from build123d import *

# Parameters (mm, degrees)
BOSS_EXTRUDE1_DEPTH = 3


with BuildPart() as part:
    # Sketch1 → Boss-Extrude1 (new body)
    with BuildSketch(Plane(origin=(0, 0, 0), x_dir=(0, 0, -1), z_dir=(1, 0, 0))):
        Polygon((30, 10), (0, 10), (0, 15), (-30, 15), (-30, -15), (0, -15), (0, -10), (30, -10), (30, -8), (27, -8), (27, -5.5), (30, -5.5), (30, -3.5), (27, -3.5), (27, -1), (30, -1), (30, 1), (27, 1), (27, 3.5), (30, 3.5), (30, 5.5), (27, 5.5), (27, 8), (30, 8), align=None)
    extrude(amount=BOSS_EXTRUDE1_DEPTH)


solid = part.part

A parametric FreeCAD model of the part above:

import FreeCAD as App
import Part
import Sketcher
from FreeCAD import Vector

doc = App.newDocument("Part")
body = doc.addObject("PartDesign::Body", "Body")

sketch1 = doc.addObject("Sketcher::SketchObject", "Sketch")
body.addObject(sketch1)
sketch1.AttachmentSupport = (doc.YZ_Plane, [""])
sketch1.MapMode = "FlatFace"
sketch1.addGeometry([
    Part.LineSegment(Vector(10, -30, 0), Vector(10, 0, 0)),
    Part.LineSegment(Vector(10, 0, 0), Vector(15, 0, 0)),
    Part.LineSegment(Vector(15, 0, 0), Vector(15, 30, 0)),
    Part.LineSegment(Vector(15, 30, 0), Vector(-15, 30, 0)),
    Part.LineSegment(Vector(-15, 30, 0), Vector(-15, 0, 0)),
    Part.LineSegment(Vector(-15, 0, 0), Vector(-10, 0, 0)),
    Part.LineSegment(Vector(-10, 0, 0), Vector(-10, -30, 0)),
    Part.LineSegment(Vector(-10, -30, 0), Vector(-8, -30, 0)),
    Part.LineSegment(Vector(-8, -30, 0), Vector(-8, -27, 0)),
    Part.LineSegment(Vector(-8, -27, 0), Vector(-5.5, -27, 0)),
    Part.LineSegment(Vector(-5.5, -27, 0), Vector(-5.5, -30, 0)),
    Part.LineSegment(Vector(-5.5, -30, 0), Vector(-3.5, -30, 0)),
    Part.LineSegment(Vector(-3.5, -30, 0), Vector(-3.5, -27, 0)),
    Part.LineSegment(Vector(-3.5, -27, 0), Vector(-1, -27, 0)),
    Part.LineSegment(Vector(-1, -27, 0), Vector(-1, -30, 0)),
    Part.LineSegment(Vector(-1, -30, 0), Vector(1, -30, 0)),
    Part.LineSegment(Vector(1, -30, 0), Vector(1, -27, 0)),
    Part.LineSegment(Vector(1, -27, 0), Vector(3.5, -27, 0)),
    Part.LineSegment(Vector(3.5, -27, 0), Vector(3.5, -30, 0)),
    Part.LineSegment(Vector(3.5, -30, 0), Vector(5.5, -30, 0)),
    Part.LineSegment(Vector(5.5, -30, 0), Vector(5.5, -27, 0)),
    Part.LineSegment(Vector(5.5, -27, 0), Vector(8, -27, 0)),
    Part.LineSegment(Vector(8, -27, 0), Vector(8, -30, 0)),
    Part.LineSegment(Vector(8, -30, 0), Vector(10, -30, 0)),
], False)
sketch1.addConstraint([
    Sketcher.Constraint("Coincident", 0, 2, 1, 1),
    Sketcher.Constraint("Coincident", 1, 2, 2, 1),
    Sketcher.Constraint("Coincident", 2, 2, 3, 1),
    Sketcher.Constraint("Coincident", 3, 2, 4, 1),
    Sketcher.Constraint("Coincident", 4, 2, 5, 1),
    Sketcher.Constraint("Coincident", 5, 2, 6, 1),
    Sketcher.Constraint("Coincident", 6, 2, 7, 1),
    Sketcher.Constraint("Coincident", 7, 2, 8, 1),
    Sketcher.Constraint("Coincident", 8, 2, 9, 1),
    Sketcher.Constraint("Coincident", 9, 2, 10, 1),
    Sketcher.Constraint("Coincident", 10, 2, 11, 1),
    Sketcher.Constraint("Coincident", 11, 2, 12, 1),
    Sketcher.Constraint("Coincident", 12, 2, 13, 1),
    Sketcher.Constraint("Coincident", 13, 2, 14, 1),
    Sketcher.Constraint("Coincident", 14, 2, 15, 1),
    Sketcher.Constraint("Coincident", 15, 2, 16, 1),
    Sketcher.Constraint("Coincident", 16, 2, 17, 1),
    Sketcher.Constraint("Coincident", 17, 2, 18, 1),
    Sketcher.Constraint("Coincident", 18, 2, 19, 1),
    Sketcher.Constraint("Coincident", 19, 2, 20, 1),
    Sketcher.Constraint("Coincident", 20, 2, 21, 1),
    Sketcher.Constraint("Coincident", 21, 2, 22, 1),
    Sketcher.Constraint("Coincident", 22, 2, 23, 1),
    Sketcher.Constraint("Coincident", 23, 2, 0, 1),
    Sketcher.Constraint("Vertical", 0),
    Sketcher.Constraint("Horizontal", 1),
    Sketcher.Constraint("Vertical", 2),
    Sketcher.Constraint("Horizontal", 3),
    Sketcher.Constraint("Vertical", 4),
    Sketcher.Constraint("Horizontal", 5),
    Sketcher.Constraint("Vertical", 6),
    Sketcher.Constraint("Horizontal", 7),
    Sketcher.Constraint("Vertical", 8),
    Sketcher.Constraint("Horizontal", 9),
    Sketcher.Constraint("Vertical", 10),
    Sketcher.Constraint("Horizontal", 11),
    Sketcher.Constraint("Vertical", 12),
    Sketcher.Constraint("Horizontal", 13),
    Sketcher.Constraint("Vertical", 14),
    Sketcher.Constraint("Horizontal", 15),
    Sketcher.Constraint("Vertical", 16),
    Sketcher.Constraint("Horizontal", 17),
    Sketcher.Constraint("Vertical", 18),
    Sketcher.Constraint("Horizontal", 19),
    Sketcher.Constraint("Vertical", 20),
    Sketcher.Constraint("Horizontal", 21),
    Sketcher.Constraint("Vertical", 22),
    Sketcher.Constraint("Horizontal", 23),
    Sketcher.Constraint("Symmetric", 1, 2, 4, 2, -1, 1),
    Sketcher.Constraint("Symmetric", 0, 2, 5, 2, -2),
    Sketcher.Constraint("Symmetric", 13, 2, 16, 2, -2),
    Sketcher.Constraint("Symmetric", 11, 2, 18, 2, -2),
    Sketcher.Constraint("Symmetric", 9, 2, 20, 2, -2),
    Sketcher.Constraint("Symmetric", 7, 2, 22, 2, -2),
    Sketcher.Constraint("Horizontal", 7, 2, 10, 2),
    Sketcher.Constraint("Horizontal", 9, 2, 12, 2),
    Sketcher.Constraint("Horizontal", 11, 2, 14, 2),
    Sketcher.Constraint("Equal", 7, 11),
    Sketcher.Constraint("Equal", 9, 13),
    Sketcher.Constraint("Equal", 11, 15),
    Sketcher.Constraint("Equal", 3, 0),
    Sketcher.Constraint("Equal", 0, 2),
    Sketcher.Constraint("DistanceX", 1, 1, 1, 2, 5.0),
    Sketcher.Constraint("DistanceX", 3, 2, 3, 1, 30.0),
    Sketcher.Constraint("DistanceX", 7, 1, 7, 2, 2.0),
    Sketcher.Constraint("DistanceY", 8, 1, 8, 2, 3.0),
])
pad1 = doc.addObject("PartDesign::Pad", "Pad")
body.addObject(pad1)
pad1.Profile = sketch1
pad1.Length = 3

doc.recompute()
